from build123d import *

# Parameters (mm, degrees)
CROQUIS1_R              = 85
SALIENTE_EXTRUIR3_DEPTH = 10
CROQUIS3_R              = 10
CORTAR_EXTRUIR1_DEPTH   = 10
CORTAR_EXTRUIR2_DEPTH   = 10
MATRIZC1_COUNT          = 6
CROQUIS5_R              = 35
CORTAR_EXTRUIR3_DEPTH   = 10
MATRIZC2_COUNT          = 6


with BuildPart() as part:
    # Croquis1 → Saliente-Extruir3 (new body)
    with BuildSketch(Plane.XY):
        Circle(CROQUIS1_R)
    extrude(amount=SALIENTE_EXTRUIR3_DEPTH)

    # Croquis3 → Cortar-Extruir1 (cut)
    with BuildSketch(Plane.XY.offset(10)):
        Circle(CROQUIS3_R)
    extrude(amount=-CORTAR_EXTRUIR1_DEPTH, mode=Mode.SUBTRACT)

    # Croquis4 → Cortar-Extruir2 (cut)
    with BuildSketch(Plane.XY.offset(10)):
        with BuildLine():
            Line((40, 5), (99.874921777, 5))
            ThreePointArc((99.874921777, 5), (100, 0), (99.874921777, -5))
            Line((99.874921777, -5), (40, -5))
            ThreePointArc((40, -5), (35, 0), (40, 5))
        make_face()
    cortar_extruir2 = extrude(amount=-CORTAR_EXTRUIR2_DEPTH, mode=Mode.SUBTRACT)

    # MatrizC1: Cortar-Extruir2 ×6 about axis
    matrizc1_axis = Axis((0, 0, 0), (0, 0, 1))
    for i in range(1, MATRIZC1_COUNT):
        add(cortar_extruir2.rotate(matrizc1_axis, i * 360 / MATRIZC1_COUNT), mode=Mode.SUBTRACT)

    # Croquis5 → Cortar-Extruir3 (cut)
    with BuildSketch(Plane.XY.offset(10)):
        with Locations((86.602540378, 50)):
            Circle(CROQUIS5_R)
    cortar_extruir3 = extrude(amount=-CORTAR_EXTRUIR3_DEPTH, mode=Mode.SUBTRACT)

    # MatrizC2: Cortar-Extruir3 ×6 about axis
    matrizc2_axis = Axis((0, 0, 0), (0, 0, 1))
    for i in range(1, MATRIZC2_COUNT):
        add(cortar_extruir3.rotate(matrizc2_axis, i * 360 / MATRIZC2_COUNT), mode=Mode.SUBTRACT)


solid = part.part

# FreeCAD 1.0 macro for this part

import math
import FreeCAD as App
import Part
import Sketcher

V = App.Vector
Q = App.Units.Quantity

doc = App.newDocument("Part")
params = doc.addObject("Spreadsheet::Sheet", "Params")
for row, (alias, value) in enumerate([
    ("sketch1_diameter", "170 mm"),
    ("pad1_length", "10 mm"),
    ("sketch2_diameter", "20 mm"),
    ("pocket1_length", "10 mm"),
    ("sketch3_radius", "5 mm"),
    ("sketch3_radius2", "100 mm"),
    ("pocket2_length", "10 mm"),
    ("sketch4_diameter", "70 mm"),
    ("pocket3_length", "10 mm"),
], start=1):
    params.set(f"A{row}", alias)
    params.set(f"B{row}", "=" + value)
    params.setAlias(f"B{row}", alias)

body = doc.addObject("PartDesign::Body", "Body")

# Sketch on XY plane
sketch1 = body.newObject("Sketcher::SketchObject", "Sketch")
sketch1.AttachmentSupport = (doc.getObject("XY_Plane"), [""])
sketch1.MapMode = "FlatFace"
sketch1.addGeometry(Part.Circle(V(0, 0, 0), V(0, 0, 1), 85), False)
sketch1.addConstraint(Sketcher.Constraint("Coincident", 0, 3, -1, 1))
sketch1.addConstraint(Sketcher.Constraint("Diameter", 0, Q("170 mm")))
sketch1.setExpression("Constraints[1]", "Params.sketch1_diameter")
pad1 = body.newObject("PartDesign::Pad", "Pad")
pad1.Profile = sketch1
pad1.setExpression("Length", "Params.pad1_length")

# Sketch on XY plane
sketch2 = body.newObject("Sketcher::SketchObject", "Sketch001")
sketch2.AttachmentSupport = (doc.getObject("XY_Plane"), [""])
sketch2.MapMode = "FlatFace"
sketch2.AttachmentOffset = App.Placement(V(0, 0, 10), App.Rotation())
sketch2.addGeometry(Part.Circle(V(0, 0, 0), V(0, 0, 1), 10), False)
sketch2.addConstraint(Sketcher.Constraint("Coincident", 0, 3, -1, 1))
sketch2.addConstraint(Sketcher.Constraint("Diameter", 0, Q("20 mm")))
sketch2.setExpression("Constraints[1]", "Params.sketch2_diameter")
pocket1 = body.newObject("PartDesign::Pocket", "Pocket")
pocket1.Profile = sketch2
pocket1.setExpression("Length", "Params.pocket1_length")

# Sketch on XY plane
sketch3 = body.newObject("Sketcher::SketchObject", "Sketch002")
sketch3.AttachmentSupport = (doc.getObject("XY_Plane"), [""])
sketch3.MapMode = "FlatFace"
sketch3.AttachmentOffset = App.Placement(V(0, 0, 10), App.Rotation())
sketch3.addGeometry(Part.LineSegment(V(99.874922, 5, 0), V(40, 5, 0)), False)
sketch3.addGeometry(Part.ArcOfCircle(Part.Circle(V(40, 0, 0), V(0, 0, 1), 5), math.radians(90), math.radians(270)), False)
sketch3.addGeometry(Part.LineSegment(V(40, -5, 0), V(99.874922, -5, 0)), False)
sketch3.addGeometry(Part.ArcOfCircle(Part.Circle(V(0, 0, 0), V(0, 0, 1), 100), math.radians(-2.865984), math.radians(2.865984)), False)
sketch3.addConstraint(Sketcher.Constraint("Tangent", 0, 2, 1, 1))
sketch3.addConstraint(Sketcher.Constraint("Tangent", 1, 2, 2, 1))
sketch3.addConstraint(Sketcher.Constraint("Coincident", 2, 2, 3, 1))
sketch3.addConstraint(Sketcher.Constraint("Coincident", 3, 2, 0, 1))
sketch3.addConstraint(Sketcher.Constraint("Horizontal", 0))
sketch3.addConstraint(Sketcher.Constraint("Horizontal", 2))
sketch3.addConstraint(Sketcher.Constraint("Coincident", 3, 3, -1, 1))
sketch3.addConstraint(Sketcher.Constraint("PointOnObject", 1, 3, -1))
sketch3.addConstraint(Sketcher.Constraint("Radius", 1, Q("5 mm")))
sketch3.addConstraint(Sketcher.Constraint("Radius", 3, Q("100 mm")))
sketch3.addConstraint(Sketcher.Constraint("DistanceX", -1, 1, 1, 3, Q("40 mm")))
sketch3.setExpression("Constraints[8]", "Params.sketch3_radius")
sketch3.setExpression("Constraints[9]", "Params.sketch3_radius2")
pocket2 = body.newObject("PartDesign::Pocket", "Pocket001")
pocket2.Profile = sketch3
pocket2.setExpression("Length", "Params.pocket2_length")
doc.recompute()

polarpattern = body.newObject("PartDesign::PolarPattern", "PolarPattern")
polarpattern.Originals = [pocket2]
polarpattern.Axis = (doc.getObject("Z_Axis"), [""])
polarpattern.Angle = 360
polarpattern.Occurrences = 6
body.Tip = polarpattern

# Sketch on XY plane
sketch4 = body.newObject("Sketcher::SketchObject", "Sketch003")
sketch4.AttachmentSupport = (doc.getObject("XY_Plane"), [""])
sketch4.MapMode = "FlatFace"
sketch4.AttachmentOffset = App.Placement(V(0, 0, 10), App.Rotation())
sketch4.addGeometry(Part.Circle(V(86.60254, 50, 0), V(0, 0, 1), 35), False)
sketch4.addConstraint(Sketcher.Constraint("Diameter", 0, Q("70 mm")))
sketch4.addConstraint(Sketcher.Constraint("DistanceY", -1, 1, 0, 3, Q("50 mm")))
sketch4.addConstraint(Sketcher.Constraint("DistanceX", -1, 1, 0, 3, Q("86.60254 mm")))
sketch4.setExpression("Constraints[0]", "Params.sketch4_diameter")
pocket3 = body.newObject("PartDesign::Pocket", "Pocket002")
pocket3.Profile = sketch4
pocket3.setExpression("Length", "Params.pocket3_length")
doc.recompute()

polarpattern2 = body.newObject("PartDesign::PolarPattern", "PolarPattern001")
polarpattern2.Originals = [pocket3]
polarpattern2.Axis = (doc.getObject("Z_Axis"), [""])
polarpattern2.Angle = 360
polarpattern2.Occurrences = 6
body.Tip = polarpattern2

doc.recompute()
